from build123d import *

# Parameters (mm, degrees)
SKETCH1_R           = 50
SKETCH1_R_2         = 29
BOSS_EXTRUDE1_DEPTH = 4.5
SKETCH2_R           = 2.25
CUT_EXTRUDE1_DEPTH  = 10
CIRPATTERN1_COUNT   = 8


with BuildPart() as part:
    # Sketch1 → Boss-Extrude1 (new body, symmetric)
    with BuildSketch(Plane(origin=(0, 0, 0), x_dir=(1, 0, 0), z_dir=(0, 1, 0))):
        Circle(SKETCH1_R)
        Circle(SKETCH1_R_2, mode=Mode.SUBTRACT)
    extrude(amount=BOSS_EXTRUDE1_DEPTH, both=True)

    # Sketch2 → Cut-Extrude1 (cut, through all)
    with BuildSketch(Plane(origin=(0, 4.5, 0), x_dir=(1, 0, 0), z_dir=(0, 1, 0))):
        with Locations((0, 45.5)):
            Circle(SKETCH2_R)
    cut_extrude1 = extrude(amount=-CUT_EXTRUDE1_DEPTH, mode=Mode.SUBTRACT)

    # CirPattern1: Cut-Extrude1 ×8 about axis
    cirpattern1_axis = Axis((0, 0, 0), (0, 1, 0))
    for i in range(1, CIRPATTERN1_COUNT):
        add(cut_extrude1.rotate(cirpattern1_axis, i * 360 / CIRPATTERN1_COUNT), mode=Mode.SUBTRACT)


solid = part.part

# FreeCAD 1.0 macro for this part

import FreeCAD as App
import Part
import Sketcher

V = App.Vector
Q = App.Units.Quantity

doc = App.newDocument("Part")
body = doc.addObject("PartDesign::Body", "Body")

# Sketch on XZ plane
sketch1 = body.newObject("Sketcher::SketchObject", "Sketch")
sketch1.AttachmentSupport = (doc.getObject("XZ_Plane"), [""])
sketch1.MapMode = "FlatFace"
sketch1.addGeometry(Part.Circle(V(0, 0, 0), V(0, 0, 1), 50), False)
sketch1.addGeometry(Part.Circle(V(0, 0, 0), V(0, 0, 1), 29), False)
sketch1.addConstraint(Sketcher.Constraint("Coincident", 0, 3, -1, 1))
sketch1.addConstraint(Sketcher.Constraint("Coincident", 1, 3, -1, 1))
sketch1.addConstraint(Sketcher.Constraint("Diameter", 0, Q("100 mm")))
sketch1.addConstraint(Sketcher.Constraint("Diameter", 1, Q("58 mm")))
pad1 = body.newObject("PartDesign::Pad", "Pad")
pad1.Profile = sketch1
pad1.Length = 9
pad1.Midplane = True

# Sketch on XZ plane
sketch2 = body.newObject("Sketcher::SketchObject", "Sketch001")
sketch2.AttachmentSupport = (doc.getObject("XZ_Plane"), [""])
sketch2.MapMode = "FlatFace"
sketch2.AttachmentOffset = App.Placement(V(0, 0, -4.5), App.Rotation())
sketch2.addGeometry(Part.Circle(V(0, -45.5, 0), V(0, 0, 1), 2.2), False)
sketch2.addConstraint(Sketcher.Constraint("PointOnObject", 0, 3, -2))
sketch2.addConstraint(Sketcher.Constraint("Diameter", 0, Q("4.5 mm")))
sketch2.addConstraint(Sketcher.Constraint("DistanceY", 0, 3, -1, 1, Q("45.5 mm")))
pocket1 = body.newObject("PartDesign::Pocket", "Pocket")
pocket1.Profile = sketch2
pocket1.Type = "ThroughAll"
pocket1.Reversed = True
doc.recompute()

polarpattern = body.newObject("PartDesign::PolarPattern", "PolarPattern")
polarpattern.Originals = [pocket1]
polarpattern.Axis = (doc.getObject("Y_Axis"), [""])
polarpattern.Angle = 360
polarpattern.Occurrences = 8
body.Tip = polarpattern

doc.recompute()
